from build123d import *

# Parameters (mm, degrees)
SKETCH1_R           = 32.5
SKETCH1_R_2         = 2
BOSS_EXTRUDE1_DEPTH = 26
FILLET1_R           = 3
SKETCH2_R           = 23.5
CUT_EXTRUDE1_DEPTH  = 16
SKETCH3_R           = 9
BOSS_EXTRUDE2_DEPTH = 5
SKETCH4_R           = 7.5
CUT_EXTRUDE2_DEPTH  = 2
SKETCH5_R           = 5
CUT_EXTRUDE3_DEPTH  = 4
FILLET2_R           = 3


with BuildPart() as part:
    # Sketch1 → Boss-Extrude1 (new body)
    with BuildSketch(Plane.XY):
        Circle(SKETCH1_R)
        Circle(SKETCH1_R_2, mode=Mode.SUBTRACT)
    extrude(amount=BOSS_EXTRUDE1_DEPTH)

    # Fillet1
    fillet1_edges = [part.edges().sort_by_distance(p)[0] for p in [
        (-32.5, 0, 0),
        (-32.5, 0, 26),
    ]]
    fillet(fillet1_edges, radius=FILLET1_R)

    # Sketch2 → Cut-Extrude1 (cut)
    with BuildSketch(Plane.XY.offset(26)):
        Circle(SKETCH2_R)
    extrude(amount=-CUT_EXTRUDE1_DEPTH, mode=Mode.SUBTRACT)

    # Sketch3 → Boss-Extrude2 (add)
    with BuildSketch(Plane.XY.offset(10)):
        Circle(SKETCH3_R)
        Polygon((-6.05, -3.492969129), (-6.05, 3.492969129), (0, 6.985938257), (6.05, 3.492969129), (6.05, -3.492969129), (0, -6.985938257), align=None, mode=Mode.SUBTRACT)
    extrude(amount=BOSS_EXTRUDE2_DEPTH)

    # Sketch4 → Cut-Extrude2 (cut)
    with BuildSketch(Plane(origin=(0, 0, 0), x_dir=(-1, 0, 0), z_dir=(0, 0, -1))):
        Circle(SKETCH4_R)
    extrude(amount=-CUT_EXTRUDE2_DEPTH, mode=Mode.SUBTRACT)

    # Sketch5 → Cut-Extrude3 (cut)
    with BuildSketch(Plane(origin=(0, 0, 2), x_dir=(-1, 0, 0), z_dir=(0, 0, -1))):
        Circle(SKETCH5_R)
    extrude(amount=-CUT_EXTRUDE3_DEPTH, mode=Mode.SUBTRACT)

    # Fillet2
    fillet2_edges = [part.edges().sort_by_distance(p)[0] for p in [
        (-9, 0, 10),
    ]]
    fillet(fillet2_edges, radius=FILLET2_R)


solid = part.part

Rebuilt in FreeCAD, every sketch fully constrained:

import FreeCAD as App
import Part
import Sketcher
Q = App.Units.Quantity


def edges_at(feature, points):
    """Names of the edges that pass closest to the given points."""
    edges = feature.Shape.Edges
    near = lambda p: min(range(len(edges)), key=lambda i: edges[i].distToShape(Part.Vertex(*p))[0])
    return sorted({f"Edge{near(p) + 1}" for p in points})

doc = App.newDocument("Part")
params = doc.addObject("Spreadsheet::Sheet", "Params")
for row, (alias, value) in enumerate([
    ("sketch1_diameter", "65 mm"),
    ("sketch1_diameter2", "4 mm"),
    ("pad1_length", "26 mm"),
    ("fillet_radius", "3 mm"),
    ("sketch2_diameter", "47 mm"),
    ("pocket1_length", "16 mm"),
    ("sketch3_diameter", "18 mm"),
    ("pad2_length", "5 mm"),
    ("sketch4_diameter", "15 mm"),
    ("pocket2_length", "2 mm"),
    ("sketch5_diameter", "10 mm"),
    ("pocket3_length", "4 mm"),
    ("fillet2_radius", "3 mm"),
], start=1):
    params.set(f"A{row}", alias)
    params.set(f"B{row}", "=" + value)
    params.setAlias(f"B{row}", alias)

body = doc.addObject("PartDesign::Body", "Body")

# Sketch on XY plane
sketch1 = doc.addObject("Sketcher::SketchObject", "Sketch")
body.addObject(sketch1)
sketch1.AttachmentSupport = (doc.XY_Plane, [""])
sketch1.MapMode = "FlatFace"
sketch1.addGeometry(Part.Circle(App.Vector(0, 0, 0), App.Vector(0, 0, 1), 32.5), False)
sketch1.addGeometry(Part.Circle(App.Vector(0, 0, 0), App.Vector(0, 0, 1), 2), False)
sketch1.addConstraint(Sketcher.Constraint("Coincident", 0, 3, -1, 1))
sketch1.addConstraint(Sketcher.Constraint("Coincident", 1, 3, -1, 1))
sketch1.addConstraint(Sketcher.Constraint("Diameter", 0, Q("65 mm")))
sketch1.addConstraint(Sketcher.Constraint("Diameter", 1, Q("4 mm")))
sketch1.setExpression("Constraints[2]", "Params.sketch1_diameter")
sketch1.setExpression("Constraints[3]", "Params.sketch1_diameter2")
pad1 = doc.addObject("PartDesign::Pad", "Pad")
body.addObject(pad1)
pad1.Profile = sketch1
pad1.setExpression("Length", "Params.pad1_length")
doc.recompute()

fillet = doc.addObject("PartDesign::Fillet", "Fillet")
body.addObject(fillet)
fillet.Base = (pad1, edges_at(pad1, [(-32.5, 0, 0), (-32.5, 0, 26)]))
fillet.setExpression("Radius", "Params.fillet_radius")

# Sketch on XY plane
sketch2 = doc.addObject("Sketcher::SketchObject", "Sketch001")
body.addObject(sketch2)
sketch2.AttachmentSupport = (doc.XY_Plane, [""])
sketch2.MapMode = "FlatFace"
sketch2.AttachmentOffset = App.Placement(App.Vector(0, 0, 26), App.Rotation())
sketch2.addGeometry(Part.Circle(App.Vector(0, 0, 0), App.Vector(0, 0, 1), 24), False)
sketch2.addConstraint(Sketcher.Constraint("Coincident", 0, 3, -1, 1))
sketch2.addConstraint(Sketcher.Constraint("Diameter", 0, Q("47 mm")))
sketch2.setExpression("Constraints[1]", "Params.sketch2_diameter")
pocket1 = doc.addObject("PartDesign::Pocket", "Pocket")
body.addObject(pocket1)
pocket1.Profile = sketch2
pocket1.setExpression("Length", "Params.pocket1_length")

# Sketch on XY plane
sketch3 = doc.addObject("Sketcher::SketchObject", "Sketch002")
body.addObject(sketch3)
sketch3.AttachmentSupport = (doc.XY_Plane, [""])
sketch3.MapMode = "FlatFace"
sketch3.AttachmentOffset = App.Placement(App.Vector(0, 0, 10), App.Rotation())
sketch3.addGeometry(Part.Circle(App.Vector(0, 0, 0), App.Vector(0, 0, 1), 9), False)
sketch3.addGeometry(Part.LineSegment(App.Vector(0, -7, 0), App.Vector(-6, -3, 0)), False)
sketch3.addGeometry(Part.LineSegment(App.Vector(-6, -3, 0), App.Vector(-6, 3, 0)), False)
sketch3.addGeometry(Part.LineSegment(App.Vector(-6, 3, 0), App.Vector(0, 7, 0)), False)
sketch3.addGeometry(Part.LineSegment(App.Vector(0, 7, 0), App.Vector(6, 3, 0)), False)
sketch3.addGeometry(Part.LineSegment(App.Vector(6, 3, 0), App.Vector(6, -3, 0)), False)
sketch3.addGeometry(Part.LineSegment(App.Vector(6, -3, 0), App.Vector(0, -7, 0)), False)
sketch3.addConstraint(Sketcher.Constraint("Coincident", 1, 2, 2, 1))
sketch3.addConstraint(Sketcher.Constraint("Coincident", 2, 2, 3, 1))
sketch3.addConstraint(Sketcher.Constraint("Coincident", 3, 2, 4, 1))
sketch3.addConstraint(Sketcher.Constraint("Coincident", 4, 2, 5, 1))
sketch3.addConstraint(Sketcher.Constraint("Coincident", 5, 2, 6, 1))
sketch3.addConstraint(Sketcher.Constraint("Coincident", 6, 2, 1, 1))
sketch3.addConstraint(Sketcher.Constraint("Vertical", 2))
sketch3.addConstraint(Sketcher.Constraint("Vertical", 5))
sketch3.addConstraint(Sketcher.Constraint("Coincident", 0, 3, -1, 1))
sketch3.addConstraint(Sketcher.Constraint("Symmetric", 1, 2, 4, 2, -1, 1))
sketch3.addConstraint(Sketcher.Constraint("Symmetric", 3, 2, 6, 2, -1, 1))
sketch3.addConstraint(Sketcher.Constraint("PointOnObject", 3, 2, -2))
sketch3.addConstraint(Sketcher.Constraint("Parallel", 3, 6))
sketch3.addConstraint(Sketcher.Constraint("Horizontal", 2, 2, 4, 2))
sketch3.addConstraint(Sketcher.Constraint("Diameter", 0, Q("18 mm")))
sketch3.addConstraint(Sketcher.Constraint("Angle", 1, Q("150 deg")))
sketch3.addConstraint(Sketcher.Constraint("DistanceX", 2, 2, 4, 2, Q("12.1 mm")))
sketch3.addConstraint(Sketcher.Constraint("DistanceY", 2, 1, 2, 2, Q("6.985938 mm")))
sketch3.setExpression("Constraints[14]", "Params.sketch3_diameter")
pad2 = doc.addObject("PartDesign::Pad", "Pad001")
body.addObject(pad2)
pad2.Profile = sketch3
pad2.setExpression("Length", "Params.pad2_length")

# Sketch on XY plane
sketch4 = doc.addObject("Sketcher::SketchObject", "Sketch003")
body.addObject(sketch4)
sketch4.AttachmentSupport = (doc.XY_Plane, [""])
sketch4.MapMode = "FlatFace"
sketch4.addGeometry(Part.Circle(App.Vector(0, 0, 0), App.Vector(0, 0, 1), 8), False)
sketch4.addConstraint(Sketcher.Constraint("Coincident", 0, 3, -1, 1))
sketch4.addConstraint(Sketcher.Constraint("Diameter", 0, Q("15 mm")))
sketch4.setExpression("Constraints[1]", "Params.sketch4_diameter")
pocket2 = doc.addObject("PartDesign::Pocket", "Pocket001")
body.addObject(pocket2)
pocket2.Profile = sketch4
pocket2.setExpression("Length", "Params.pocket2_length")
pocket2.Reversed = True

# Sketch on XY plane
sketch5 = doc.addObject("Sketcher::SketchObject", "Sketch004")
body.addObject(sketch5)
sketch5.AttachmentSupport = (doc.XY_Plane, [""])
sketch5.MapMode = "FlatFace"
sketch5.AttachmentOffset = App.Placement(App.Vector(0, 0, 2), App.Rotation())
sketch5.addGeometry(Part.Circle(App.Vector(0, 0, 0), App.Vector(0, 0, 1), 5), False)
sketch5.addConstraint(Sketcher.Constraint("Coincident", 0, 3, -1, 1))
sketch5.addConstraint(Sketcher.Constraint("Diameter", 0, Q("10 mm")))
sketch5.setExpression("Constraints[1]", "Params.sketch5_diameter")
pocket3 = doc.addObject("PartDesign::Pocket", "Pocket002")
body.addObject(pocket3)
pocket3.Profile = sketch5
pocket3.setExpression("Length", "Params.pocket3_length")
pocket3.Reversed = True
doc.recompute()

fillet2 = doc.addObject("PartDesign::Fillet", "Fillet001")
body.addObject(fillet2)
fillet2.Base = (pocket3, edges_at(pocket3, [(-9, 0, 10)]))
fillet2.setExpression("Radius", "Params.fillet2_radius")

doc.recompute()
